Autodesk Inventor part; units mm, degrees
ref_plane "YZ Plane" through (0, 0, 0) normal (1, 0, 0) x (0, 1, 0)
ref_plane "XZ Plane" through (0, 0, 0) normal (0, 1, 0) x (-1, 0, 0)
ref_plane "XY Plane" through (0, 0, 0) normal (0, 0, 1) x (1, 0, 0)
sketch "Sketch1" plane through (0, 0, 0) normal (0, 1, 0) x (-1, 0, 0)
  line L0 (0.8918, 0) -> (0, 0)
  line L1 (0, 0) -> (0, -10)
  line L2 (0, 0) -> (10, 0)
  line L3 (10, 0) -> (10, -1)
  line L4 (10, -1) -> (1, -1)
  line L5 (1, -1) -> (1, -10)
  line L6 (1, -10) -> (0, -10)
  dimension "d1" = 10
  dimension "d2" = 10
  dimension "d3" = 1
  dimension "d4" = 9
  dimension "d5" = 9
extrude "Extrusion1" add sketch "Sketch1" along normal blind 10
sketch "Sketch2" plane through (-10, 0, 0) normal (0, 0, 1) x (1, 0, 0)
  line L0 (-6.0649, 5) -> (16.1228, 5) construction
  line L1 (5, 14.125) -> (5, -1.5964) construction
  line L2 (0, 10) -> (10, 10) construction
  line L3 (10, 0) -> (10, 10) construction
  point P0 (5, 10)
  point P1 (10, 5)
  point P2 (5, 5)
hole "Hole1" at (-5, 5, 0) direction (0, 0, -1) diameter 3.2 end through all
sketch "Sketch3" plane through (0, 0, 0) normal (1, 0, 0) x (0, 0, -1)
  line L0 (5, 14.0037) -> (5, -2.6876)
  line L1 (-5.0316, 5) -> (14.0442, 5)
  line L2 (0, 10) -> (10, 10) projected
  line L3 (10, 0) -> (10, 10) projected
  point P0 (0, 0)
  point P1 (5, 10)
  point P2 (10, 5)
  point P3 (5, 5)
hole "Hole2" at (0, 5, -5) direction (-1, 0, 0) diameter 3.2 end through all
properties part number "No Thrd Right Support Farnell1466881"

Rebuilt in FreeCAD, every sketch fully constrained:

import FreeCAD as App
import Part
import Sketcher
from FreeCAD import Vector
Q = App.Units.Quantity

doc = App.newDocument("Part")
body = doc.addObject("PartDesign::Body", "Body")

# Sketch on XZ plane
sketch1 = body.newObject("Sketcher::SketchObject", "Sketch")
sketch1.AttachmentSupport = (doc.getObject("XZ_Plane"), [""])
sketch1.MapMode = "FlatFace"
sketch1.addGeometry(Part.LineSegment(Vector(-10, 0, 0), Vector(0, 0, 0)), False)
sketch1.addGeometry(Part.LineSegment(Vector(0, 0, 0), Vector(0, -10, 0)), False)
sketch1.addGeometry(Part.LineSegment(Vector(0, -10, 0), Vector(-1, -10, 0)), False)
sketch1.addGeometry(Part.LineSegment(Vector(-1, -10, 0), Vector(-1, -1, 0)), False)
sketch1.addGeometry(Part.LineSegment(Vector(-1, -1, 0), Vector(-10, -1, 0)), False)
sketch1.addGeometry(Part.LineSegment(Vector(-10, -1, 0), Vector(-10, 0, 0)), False)
sketch1.addConstraint(Sketcher.Constraint("Coincident", 0, 2, 1, 1))
sketch1.addConstraint(Sketcher.Constraint("Coincident", 1, 2, 2, 1))
sketch1.addConstraint(Sketcher.Constraint("Coincident", 2, 2, 3, 1))
sketch1.addConstraint(Sketcher.Constraint("Coincident", 3, 2, 4, 1))
sketch1.addConstraint(Sketcher.Constraint("Coincident", 4, 2, 5, 1))
sketch1.addConstraint(Sketcher.Constraint("Coincident", 5, 2, 0, 1))
sketch1.addConstraint(Sketcher.Constraint("Horizontal", 0))
sketch1.addConstraint(Sketcher.Constraint("Vertical", 1))
sketch1.addConstraint(Sketcher.Constraint("Horizontal", 2))
sketch1.addConstraint(Sketcher.Constraint("Vertical", 3))
sketch1.addConstraint(Sketcher.Constraint("Horizontal", 4))
sketch1.addConstraint(Sketcher.Constraint("Vertical", 5))
sketch1.addConstraint(Sketcher.Constraint("Coincident", 0, 2, -1, 1))
sketch1.addConstraint(Sketcher.Constraint("Equal", 0, 1))
sketch1.addConstraint(Sketcher.Constraint("Equal", 4, 3))
sketch1.addConstraint(Sketcher.Constraint("DistanceX", 0, 1, 0, 2, Q("10 mm")))
sketch1.addConstraint(Sketcher.Constraint("DistanceX", 2, 2, 2, 1, Q("1 mm")))
pad1 = body.newObject("PartDesign::Pad", "Pad")
pad1.Profile = sketch1
pad1.Length = 10
pad1.Reversed = True

# Sketch on XY plane
sketch2 = body.newObject("Sketcher::SketchObject", "Sketch001")
sketch2.AttachmentSupport = (doc.getObject("XY_Plane"), [""])
sketch2.MapMode = "FlatFace"
sketch2.addGeometry(Part.Circle(Vector(-5, 5, 0), Vector(0, 0, 1), 1.6), False)
sketch2.addConstraint(Sketcher.Constraint("Diameter", 0, Q("3.2 mm")))
sketch2.addConstraint(Sketcher.Constraint("DistanceX", 0, 3, -1, 1, Q("5 mm")))
sketch2.addConstraint(Sketcher.Constraint("DistanceY", -1, 1, 0, 3, Q("5 mm")))
doc.recompute()
hole = body.newObject("PartDesign::Hole", "Hole")
hole.Profile = sketch2
hole.ThreadType = "None"
hole.Diameter = 3.2
hole.DepthType = "ThroughAll"

# Sketch on YZ plane
sketch3 = body.newObject("Sketcher::SketchObject", "Sketch002")
sketch3.AttachmentSupport = (doc.getObject("YZ_Plane"), [""])
sketch3.MapMode = "FlatFace"
sketch3.addGeometry(Part.Circle(Vector(5, -5, 0), Vector(0, 0, 1), 1.6), False)
sketch3.addConstraint(Sketcher.Constraint("Diameter", 0, Q("3.2 mm")))
sketch3.addConstraint(Sketcher.Constraint("DistanceX", -1, 1, 0, 3, Q("5 mm")))
sketch3.addConstraint(Sketcher.Constraint("DistanceY", 0, 3, -1, 1, Q("5 mm")))
doc.recompute()
hole2 = body.newObject("PartDesign::Hole", "Hole001")
hole2.Profile = sketch3
hole2.ThreadType = "None"
hole2.Diameter = 3.2
hole2.DepthType = "ThroughAll"

doc.recompute()
